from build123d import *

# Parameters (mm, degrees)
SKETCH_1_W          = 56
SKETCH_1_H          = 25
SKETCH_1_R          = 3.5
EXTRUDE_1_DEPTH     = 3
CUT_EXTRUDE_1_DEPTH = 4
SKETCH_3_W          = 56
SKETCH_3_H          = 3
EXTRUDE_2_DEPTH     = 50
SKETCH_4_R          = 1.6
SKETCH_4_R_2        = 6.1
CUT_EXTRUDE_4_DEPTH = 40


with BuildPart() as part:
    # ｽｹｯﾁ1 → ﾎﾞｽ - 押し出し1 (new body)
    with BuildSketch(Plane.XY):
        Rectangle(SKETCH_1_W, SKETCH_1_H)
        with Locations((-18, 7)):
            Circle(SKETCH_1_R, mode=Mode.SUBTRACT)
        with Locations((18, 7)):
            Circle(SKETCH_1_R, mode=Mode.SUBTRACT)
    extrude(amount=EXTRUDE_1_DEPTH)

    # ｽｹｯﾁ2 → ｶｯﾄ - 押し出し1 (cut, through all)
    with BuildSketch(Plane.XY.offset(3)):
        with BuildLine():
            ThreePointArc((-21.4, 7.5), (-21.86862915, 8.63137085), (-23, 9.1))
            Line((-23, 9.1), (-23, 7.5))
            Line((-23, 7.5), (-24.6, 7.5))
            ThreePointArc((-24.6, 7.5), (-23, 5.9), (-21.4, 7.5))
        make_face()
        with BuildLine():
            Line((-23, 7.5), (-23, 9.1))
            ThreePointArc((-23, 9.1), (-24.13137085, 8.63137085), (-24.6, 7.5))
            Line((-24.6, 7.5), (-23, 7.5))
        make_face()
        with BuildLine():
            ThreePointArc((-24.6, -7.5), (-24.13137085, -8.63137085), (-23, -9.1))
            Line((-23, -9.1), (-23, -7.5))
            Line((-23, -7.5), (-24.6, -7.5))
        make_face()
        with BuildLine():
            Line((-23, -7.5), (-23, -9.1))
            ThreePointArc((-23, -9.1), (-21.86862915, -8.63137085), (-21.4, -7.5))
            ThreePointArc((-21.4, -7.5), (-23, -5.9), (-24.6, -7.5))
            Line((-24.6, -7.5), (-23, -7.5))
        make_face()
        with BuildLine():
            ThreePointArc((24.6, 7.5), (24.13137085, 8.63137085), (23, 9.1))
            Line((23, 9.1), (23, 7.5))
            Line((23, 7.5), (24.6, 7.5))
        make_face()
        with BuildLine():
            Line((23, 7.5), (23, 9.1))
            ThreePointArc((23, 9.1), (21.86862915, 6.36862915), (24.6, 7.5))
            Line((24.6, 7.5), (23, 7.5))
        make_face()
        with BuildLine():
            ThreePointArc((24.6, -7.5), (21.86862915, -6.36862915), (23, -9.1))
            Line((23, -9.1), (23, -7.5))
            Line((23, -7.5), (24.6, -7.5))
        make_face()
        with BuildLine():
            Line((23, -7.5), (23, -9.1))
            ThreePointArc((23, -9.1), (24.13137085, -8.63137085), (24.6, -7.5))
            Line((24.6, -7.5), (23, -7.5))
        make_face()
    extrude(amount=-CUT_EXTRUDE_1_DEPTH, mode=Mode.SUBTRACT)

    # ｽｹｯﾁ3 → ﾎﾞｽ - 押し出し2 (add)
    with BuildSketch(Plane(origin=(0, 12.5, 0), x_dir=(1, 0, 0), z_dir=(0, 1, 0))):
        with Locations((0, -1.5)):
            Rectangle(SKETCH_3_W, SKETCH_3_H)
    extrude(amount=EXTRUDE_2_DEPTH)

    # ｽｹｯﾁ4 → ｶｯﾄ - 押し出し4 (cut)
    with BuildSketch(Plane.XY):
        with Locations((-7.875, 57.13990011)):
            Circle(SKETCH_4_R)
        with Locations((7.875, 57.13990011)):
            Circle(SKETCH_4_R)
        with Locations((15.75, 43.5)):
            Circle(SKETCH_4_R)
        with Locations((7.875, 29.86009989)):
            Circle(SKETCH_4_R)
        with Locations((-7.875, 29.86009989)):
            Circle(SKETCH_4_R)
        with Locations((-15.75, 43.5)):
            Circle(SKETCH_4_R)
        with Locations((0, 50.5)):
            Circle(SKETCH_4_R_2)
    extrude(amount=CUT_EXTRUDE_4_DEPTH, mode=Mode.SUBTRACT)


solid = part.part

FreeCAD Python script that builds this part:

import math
import FreeCAD as App
import Part
import Sketcher

V = App.Vector

doc = App.newDocument("Part")
body = doc.addObject("PartDesign::Body", "Body")

# Sketch on XY plane
sketch1 = doc.addObject("Sketcher::SketchObject", "Sketch")
body.addObject(sketch1)
sketch1.AttachmentSupport = (doc.XY_Plane, [""])
sketch1.MapMode = "FlatFace"
sketch1.addGeometry([
    Part.LineSegment(V(-28, 12.5, 0), V(-28, -12.5, 0)),  # 0
    Part.LineSegment(V(-28, -12.5, 0), V(28, -12.5, 0)),  # 1
    Part.LineSegment(V(28, -12.5, 0), V(28, 12.5, 0)),  # 2
    Part.LineSegment(V(28, 12.5, 0), V(-28, 12.5, 0)),  # 3
    Part.Circle(V(-18, 7, 0), V(0, 0, 1), 3.5),  # 4
    Part.Circle(V(18, 7, 0), V(0, 0, 1), 3.5),  # 5
], False)
sketch1.addConstraint([
    Sketcher.Constraint("Coincident", 0, 2, 1, 1),
    Sketcher.Constraint("Coincident", 1, 2, 2, 1),
    Sketcher.Constraint("Coincident", 2, 2, 3, 1),
    Sketcher.Constraint("Coincident", 3, 2, 0, 1),
    Sketcher.Constraint("Vertical", 0),
    Sketcher.Constraint("Horizontal", 1),
    Sketcher.Constraint("Vertical", 2),
    Sketcher.Constraint("Horizontal", 3),
    Sketcher.Constraint("Equal", 4, 5),
    Sketcher.Constraint("Symmetric", 0, 2, 2, 2, -1, 1),
    Sketcher.Constraint("Symmetric", 4, 3, 5, 3, -2),
    Sketcher.Constraint("Diameter", 4, 7.0),
    Sketcher.Constraint("DistanceX", 1, 1, 1, 2, 56.0),
    Sketcher.Constraint("DistanceY", 0, 2, 0, 1, 25.0),
    Sketcher.Constraint("DistanceX", 4, 3, -1, 1, 18.0),
    Sketcher.Constraint("DistanceY", -1, 1, 4, 3, 7.0),
])
pad1 = doc.addObject("PartDesign::Pad", "Pad")
body.addObject(pad1)
pad1.Profile = sketch1
pad1.Length = 3

# Sketch on XY plane
sketch2 = doc.addObject("Sketcher::SketchObject", "Sketch001")
body.addObject(sketch2)
sketch2.AttachmentSupport = (doc.XY_Plane, [""])
sketch2.MapMode = "FlatFace"
sketch2.AttachmentOffset = App.Placement(V(0, 0, 3), App.Rotation())
sketch2.addGeometry([
    Part.ArcOfCircle(Part.Circle(V(-23, 7.5, 0), V(0, 0, 1), 1.6), math.radians(0), math.radians(90)),  # 0
    Part.ArcOfCircle(Part.Circle(V(-23, 7.5, 0), V(0, 0, 1), 1.6), math.radians(90), math.radians(180)),  # 1
    Part.ArcOfCircle(Part.Circle(V(-23, 7.5, 0), V(0, 0, 1), 1.6), math.radians(180), math.radians(360)),  # 2
    Part.ArcOfCircle(Part.Circle(V(-23, -7.5, 0), V(0, 0, 1), 1.6), math.radians(180), math.radians(270)),  # 3
    Part.ArcOfCircle(Part.Circle(V(-23, -7.5, 0), V(0, 0, 1), 1.6), math.radians(-90), math.radians(0)),  # 4
    Part.ArcOfCircle(Part.Circle(V(-23, -7.5, 0), V(0, 0, 1), 1.6), math.radians(0), math.radians(180)),  # 5
    Part.ArcOfCircle(Part.Circle(V(23, 7.5, 0), V(0, 0, 1), 1.6), math.radians(0), math.radians(90)),  # 6
    Part.ArcOfCircle(Part.Circle(V(23, 7.5, 0), V(0, 0, 1), 1.6), math.radians(90), math.radians(360)),  # 7
    Part.ArcOfCircle(Part.Circle(V(23, -7.5, 0), V(0, 0, 1), 1.6), math.radians(0), math.radians(270)),  # 8
    Part.ArcOfCircle(Part.Circle(V(23, -7.5, 0), V(0, 0, 1), 1.6), math.radians(-90), math.radians(0)),  # 9
], False)
sketch2.addConstraint([
    Sketcher.Constraint("Tangent", 0, 2, 1, 1),
    Sketcher.Constraint("Tangent", 1, 2, 2, 1),
    Sketcher.Constraint("Tangent", 2, 2, 0, 1),
    Sketcher.Constraint("Tangent", 3, 2, 4, 1),
    Sketcher.Constraint("Tangent", 4, 2, 5, 1),
    Sketcher.Constraint("Tangent", 5, 2, 3, 1),
    Sketcher.Constraint("Tangent", 6, 1, 7, 2),
    Sketcher.Constraint("Coincident", 7, 1, 6, 2),
    Sketcher.Constraint("Tangent", 8, 1, 9, 2),
    Sketcher.Constraint("Coincident", 9, 1, 8, 2),
    Sketcher.Constraint("Equal", 2, 3),
    Sketcher.Constraint("Equal", 5, 6),
    Sketcher.Constraint("Equal", 7, 8),
    Sketcher.Constraint("Symmetric", 3, 3, 6, 3, -1, 1),
    Sketcher.Constraint("Symmetric", 0, 3, 8, 3, -1, 1),
    Sketcher.Constraint("Symmetric", 0, 3, 6, 3, -2),
    Sketcher.Constraint("Horizontal", 7, 3, 1, 2),
    Sketcher.Constraint("Horizontal", 1, 2, 2, 2),
    Sketcher.Constraint("Horizontal", 9, 3, 4, 2),
    Sketcher.Constraint("Horizontal", 4, 2, 5, 2),
    Sketcher.Constraint("Horizontal", 2, 2, 6, 1),
    Sketcher.Constraint("Horizontal", 5, 2, 8, 1),
    Sketcher.Constraint("Vertical", 5, 3, 0, 2),
    Sketcher.Constraint("Vertical", 0, 2, 3, 2),
    Sketcher.Constraint("Vertical", 9, 3, 7, 1),
    Sketcher.Constraint("Vertical", 7, 1, 9, 1),
    Sketcher.Constraint("Radius", 0, 1.6),
    Sketcher.Constraint("DistanceX", 0, 3, -1, 1, 23.0),
    Sketcher.Constraint("DistanceY", 3, 3, 0, 3, 15.0),
])
pocket1 = doc.addObject("PartDesign::Pocket", "Pocket")
body.addObject(pocket1)
pocket1.Profile = sketch2
pocket1.Type = "ThroughAll"

# Sketch on XZ plane
sketch3 = doc.addObject("Sketcher::SketchObject", "Sketch002")
body.addObject(sketch3)
sketch3.AttachmentSupport = (doc.XZ_Plane, [""])
sketch3.MapMode = "FlatFace"
sketch3.AttachmentOffset = App.Placement(V(0, 0, -12.5), App.Rotation())
sketch3.addGeometry([
    Part.LineSegment(V(-28, 0, 0), V(-28, 3, 0)),
    Part.LineSegment(V(-28, 3, 0), V(28, 3, 0)),
    Part.LineSegment(V(28, 3, 0), V(28, 0, 0)),
    Part.LineSegment(V(28, 0, 0), V(-28, 0, 0)),
], False)
sketch3.addConstraint([
    Sketcher.Constraint("Coincident", 0, 2, 1, 1),
    Sketcher.Constraint("Coincident", 1, 2, 2, 1),
    Sketcher.Constraint("Coincident", 2, 2, 3, 1),
    Sketcher.Constraint("Coincident", 3, 2, 0, 1),
    Sketcher.Constraint("Vertical", 0),
    Sketcher.Constraint("Horizontal", 1),
    Sketcher.Constraint("Vertical", 2),
    Sketcher.Constraint("Horizontal", 3),
    Sketcher.Constraint("Symmetric", 2, 2, 3, 2, -1, 1),
    Sketcher.Constraint("DistanceX", 1, 1, 1, 2, 56.0),
    Sketcher.Constraint("DistanceY", 0, 1, 0, 2, 3.0),
])
pad2 = doc.addObject("PartDesign::Pad", "Pad001")
body.addObject(pad2)
pad2.Profile = sketch3
pad2.Length = 50
pad2.Reversed = True

# Sketch on XY plane
sketch4 = doc.addObject("Sketcher::SketchObject", "Sketch003")
body.addObject(sketch4)
sketch4.AttachmentSupport = (doc.XY_Plane, [""])
sketch4.MapMode = "FlatFace"
sketch4.addGeometry([
    Part.Circle(V(-7.9, 57.1, 0), V(0, 0, 1), 1.6),  # 0
    Part.Circle(V(7.9, 57.1, 0), V(0, 0, 1), 1.6),  # 1
    Part.Circle(V(15.8, 43.5, 0), V(0, 0, 1), 1.6),  # 2
    Part.Circle(V(7.9, 29.9, 0), V(0, 0, 1), 1.6),  # 3
    Part.Circle(V(-7.9, 29.9, 0), V(0, 0, 1), 1.6),  # 4
    Part.Circle(V(-15.8, 43.5, 0), V(0, 0, 1), 1.6),  # 5
    Part.Circle(V(0, 50.5, 0), V(0, 0, 1), 6.1),  # 6
], False)
sketch4.addConstraint([
    Sketcher.Constraint("Equal", 0, 1),
    Sketcher.Constraint("Equal", 1, 2),
    Sketcher.Constraint("Equal", 2, 3),
    Sketcher.Constraint("Equal", 3, 4),
    Sketcher.Constraint("Equal", 4, 5),
    Sketcher.Constraint("Symmetric", 0, 3, 1, 3, -2),
    Sketcher.Constraint("Symmetric", 3, 3, 4, 3, -2),
    Sketcher.Constraint("Symmetric", 2, 3, 5, 3, -2),
    Sketcher.Constraint("PointOnObject", 6, 3, -2),
    Sketcher.Constraint("Vertical", 1, 3, 3, 3),
    Sketcher.Constraint("Diameter", 0, 3.2),
    Sketcher.Constraint("Diameter", 6, 12.2),
    Sketcher.Constraint("DistanceY", 2, 3, 6, 3, 7.0),
    Sketcher.Constraint("DistanceY", -1, 1, 2, 3, 43.5),
    Sketcher.Constraint("DistanceX", 5, 3, 2, 3, 31.5),
    Sketcher.Constraint("DistanceX", 0, 3, 1, 3, 15.75),
    Sketcher.Constraint("DistanceY", -1, 1, 0, 3, 57.1399),
    Sketcher.Constraint("DistanceY", -1, 1, 3, 3, 29.8601),
])
pocket2 = doc.addObject("PartDesign::Pocket", "Pocket001")
body.addObject(pocket2)
pocket2.Profile = sketch4
pocket2.Length = 40
pocket2.Reversed = True

doc.recompute()
